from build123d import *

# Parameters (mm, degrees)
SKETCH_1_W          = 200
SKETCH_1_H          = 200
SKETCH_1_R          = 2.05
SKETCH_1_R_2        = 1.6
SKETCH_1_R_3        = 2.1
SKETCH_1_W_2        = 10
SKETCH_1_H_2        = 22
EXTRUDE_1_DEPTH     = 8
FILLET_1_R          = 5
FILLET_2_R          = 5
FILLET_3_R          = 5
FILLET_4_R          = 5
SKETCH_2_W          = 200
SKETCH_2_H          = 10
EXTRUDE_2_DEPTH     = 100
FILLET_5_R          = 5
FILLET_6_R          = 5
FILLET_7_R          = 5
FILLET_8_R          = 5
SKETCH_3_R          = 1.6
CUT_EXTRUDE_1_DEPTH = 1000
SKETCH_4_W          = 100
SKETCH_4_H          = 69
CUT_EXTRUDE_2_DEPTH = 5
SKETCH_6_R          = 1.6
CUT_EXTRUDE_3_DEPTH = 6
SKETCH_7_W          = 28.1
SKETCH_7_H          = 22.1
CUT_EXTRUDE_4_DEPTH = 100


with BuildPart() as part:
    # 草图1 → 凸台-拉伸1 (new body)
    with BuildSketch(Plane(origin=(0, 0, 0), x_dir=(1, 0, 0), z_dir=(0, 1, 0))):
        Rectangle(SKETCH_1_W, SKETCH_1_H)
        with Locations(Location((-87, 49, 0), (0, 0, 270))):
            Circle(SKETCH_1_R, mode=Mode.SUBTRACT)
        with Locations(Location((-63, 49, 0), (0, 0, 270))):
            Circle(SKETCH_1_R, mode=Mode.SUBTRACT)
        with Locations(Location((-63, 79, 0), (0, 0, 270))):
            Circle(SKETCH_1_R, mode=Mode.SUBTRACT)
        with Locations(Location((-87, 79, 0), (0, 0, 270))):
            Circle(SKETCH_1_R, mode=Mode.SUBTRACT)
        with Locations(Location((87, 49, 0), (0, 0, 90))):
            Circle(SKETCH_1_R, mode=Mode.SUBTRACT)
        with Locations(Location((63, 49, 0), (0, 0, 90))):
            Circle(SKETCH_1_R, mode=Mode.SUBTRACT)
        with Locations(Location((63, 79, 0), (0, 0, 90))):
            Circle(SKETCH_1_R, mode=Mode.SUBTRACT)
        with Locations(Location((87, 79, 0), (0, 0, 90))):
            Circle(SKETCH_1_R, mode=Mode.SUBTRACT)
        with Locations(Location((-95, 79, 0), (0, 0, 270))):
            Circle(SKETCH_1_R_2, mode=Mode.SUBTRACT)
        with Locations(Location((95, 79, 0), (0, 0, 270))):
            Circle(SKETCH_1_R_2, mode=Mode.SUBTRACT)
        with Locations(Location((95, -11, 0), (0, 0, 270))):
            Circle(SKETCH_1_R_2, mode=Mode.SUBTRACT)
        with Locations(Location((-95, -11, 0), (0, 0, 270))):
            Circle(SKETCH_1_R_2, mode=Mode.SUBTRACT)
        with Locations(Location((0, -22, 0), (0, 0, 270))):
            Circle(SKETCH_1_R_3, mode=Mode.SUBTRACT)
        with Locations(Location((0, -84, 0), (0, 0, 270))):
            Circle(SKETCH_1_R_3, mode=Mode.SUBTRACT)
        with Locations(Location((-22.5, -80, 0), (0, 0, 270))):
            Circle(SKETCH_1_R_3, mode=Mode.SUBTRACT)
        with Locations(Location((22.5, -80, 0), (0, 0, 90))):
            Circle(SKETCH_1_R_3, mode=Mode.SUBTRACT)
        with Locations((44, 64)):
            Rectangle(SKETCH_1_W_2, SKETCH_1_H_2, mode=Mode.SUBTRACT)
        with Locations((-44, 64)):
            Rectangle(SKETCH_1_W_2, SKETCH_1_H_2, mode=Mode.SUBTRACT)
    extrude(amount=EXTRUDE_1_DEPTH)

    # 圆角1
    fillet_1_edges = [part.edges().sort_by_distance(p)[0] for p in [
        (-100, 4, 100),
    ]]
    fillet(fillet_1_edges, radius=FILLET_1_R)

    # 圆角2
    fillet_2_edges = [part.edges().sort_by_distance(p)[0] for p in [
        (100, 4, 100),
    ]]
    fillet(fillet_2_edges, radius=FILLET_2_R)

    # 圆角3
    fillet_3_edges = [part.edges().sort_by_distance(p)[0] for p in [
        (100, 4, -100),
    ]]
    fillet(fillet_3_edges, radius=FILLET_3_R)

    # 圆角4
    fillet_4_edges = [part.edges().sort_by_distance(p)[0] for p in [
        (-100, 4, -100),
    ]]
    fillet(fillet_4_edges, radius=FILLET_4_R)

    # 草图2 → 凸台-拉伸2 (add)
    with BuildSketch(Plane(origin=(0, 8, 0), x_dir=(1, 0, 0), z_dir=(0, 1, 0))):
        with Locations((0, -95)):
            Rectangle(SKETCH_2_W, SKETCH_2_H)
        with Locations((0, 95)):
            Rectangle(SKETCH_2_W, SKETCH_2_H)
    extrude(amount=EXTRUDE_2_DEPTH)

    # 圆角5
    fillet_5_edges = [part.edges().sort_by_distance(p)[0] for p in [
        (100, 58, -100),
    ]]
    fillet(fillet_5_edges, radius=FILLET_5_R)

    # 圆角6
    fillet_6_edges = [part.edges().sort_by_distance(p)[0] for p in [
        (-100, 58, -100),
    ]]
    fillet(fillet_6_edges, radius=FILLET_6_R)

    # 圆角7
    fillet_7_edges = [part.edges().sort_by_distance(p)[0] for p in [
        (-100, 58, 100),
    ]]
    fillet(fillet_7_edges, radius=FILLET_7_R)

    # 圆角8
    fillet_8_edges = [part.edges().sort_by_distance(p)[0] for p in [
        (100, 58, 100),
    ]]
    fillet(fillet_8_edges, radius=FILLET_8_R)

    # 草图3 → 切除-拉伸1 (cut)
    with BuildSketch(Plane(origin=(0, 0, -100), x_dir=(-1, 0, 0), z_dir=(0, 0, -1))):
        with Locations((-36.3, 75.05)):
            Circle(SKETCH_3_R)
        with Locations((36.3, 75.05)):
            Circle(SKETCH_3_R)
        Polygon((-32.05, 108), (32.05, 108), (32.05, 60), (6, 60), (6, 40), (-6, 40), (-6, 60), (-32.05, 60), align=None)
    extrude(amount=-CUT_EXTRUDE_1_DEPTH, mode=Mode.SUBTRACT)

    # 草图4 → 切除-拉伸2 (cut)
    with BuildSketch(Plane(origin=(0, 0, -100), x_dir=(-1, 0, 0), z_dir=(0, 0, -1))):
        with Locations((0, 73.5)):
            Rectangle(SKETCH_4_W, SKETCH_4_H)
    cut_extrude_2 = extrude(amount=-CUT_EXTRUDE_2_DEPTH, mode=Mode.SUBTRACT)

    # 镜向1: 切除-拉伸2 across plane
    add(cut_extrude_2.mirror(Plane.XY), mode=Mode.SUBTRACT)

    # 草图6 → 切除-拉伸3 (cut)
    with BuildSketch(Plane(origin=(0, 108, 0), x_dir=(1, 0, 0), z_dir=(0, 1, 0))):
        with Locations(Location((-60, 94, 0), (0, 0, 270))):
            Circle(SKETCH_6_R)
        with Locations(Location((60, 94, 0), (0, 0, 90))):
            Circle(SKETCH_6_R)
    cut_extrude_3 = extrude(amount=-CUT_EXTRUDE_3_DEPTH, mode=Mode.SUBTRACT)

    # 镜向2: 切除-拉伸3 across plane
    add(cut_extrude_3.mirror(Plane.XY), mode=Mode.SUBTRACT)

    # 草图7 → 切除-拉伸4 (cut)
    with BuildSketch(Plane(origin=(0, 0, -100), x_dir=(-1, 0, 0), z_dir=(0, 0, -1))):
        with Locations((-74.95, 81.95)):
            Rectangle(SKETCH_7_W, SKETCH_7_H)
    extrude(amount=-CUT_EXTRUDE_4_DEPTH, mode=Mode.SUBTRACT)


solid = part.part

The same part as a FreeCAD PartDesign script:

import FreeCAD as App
import Part
import Sketcher
Q = App.Units.Quantity


def edges_at(feature, points):
    """Names of the edges that pass closest to the given points."""
    edges = feature.Shape.Edges
    near = lambda p: min(range(len(edges)), key=lambda i: edges[i].distToShape(Part.Vertex(*p))[0])
    return sorted({f"Edge{near(p) + 1}" for p in points})

doc = App.newDocument("Part")
body = doc.addObject("PartDesign::Body", "Body")

# Sketch on XZ plane
sketch1 = body.newObject("Sketcher::SketchObject", "Sketch")
sketch1.AttachmentSupport = (doc.getObject("XZ_Plane"), [""])
sketch1.MapMode = "FlatFace"
sketch1.addGeometry(Part.LineSegment(App.Vector(-100, -100, 0), App.Vector(-100, 100, 0)), False)
sketch1.addGeometry(Part.LineSegment(App.Vector(-100, 100, 0), App.Vector(100, 100, 0)), False)
sketch1.addGeometry(Part.LineSegment(App.Vector(100, 100, 0), App.Vector(100, -100, 0)), False)
sketch1.addGeometry(Part.LineSegment(App.Vector(100, -100, 0), App.Vector(-100, -100, 0)), False)
sketch1.addGeometry(Part.Circle(App.Vector(-22.5, 80, 0), App.Vector(0, 0, 1), 2.1), False)
sketch1.addGeometry(Part.Circle(App.Vector(0, 84, 0), App.Vector(0, 0, 1), 2.1), False)
sketch1.addGeometry(Part.Circle(App.Vector(-95, 11, 0), App.Vector(0, 0, 1), 1.6), False)
sketch1.addGeometry(Part.Circle(App.Vector(0, 22, 0), App.Vector(0, 0, 1), 2.1), False)
sketch1.addGeometry(Part.Circle(App.Vector(22.5, 80, 0), App.Vector(0, 0, 1), 2.1), False)
sketch1.addGeometry(Part.Circle(App.Vector(95, 11, 0), App.Vector(0, 0, 1), 1.6), False)
sketch1.addGeometry(Part.Circle(App.Vector(-87, -49, 0), App.Vector(0, 0, 1), 2.05), False)
sketch1.addGeometry(Part.Circle(App.Vector(-63, -49, 0), App.Vector(0, 0, 1), 2.05), False)
sketch1.addGeometry(Part.Circle(App.Vector(-95, -79, 0), App.Vector(0, 0, 1), 1.6), False)
sketch1.addGeometry(Part.Circle(App.Vector(-87, -79, 0), App.Vector(0, 0, 1), 2.05), False)
sketch1.addGeometry(Part.Circle(App.Vector(-63, -79, 0), App.Vector(0, 0, 1), 2.05), False)
sketch1.addGeometry(Part.LineSegment(App.Vector(-39, -53, 0), App.Vector(-49, -53, 0)), False)
sketch1.addGeometry(Part.LineSegment(App.Vector(-49, -53, 0), App.Vector(-49, -75, 0)), False)
sketch1.addGeometry(Part.LineSegment(App.Vector(-49, -75, 0), App.Vector(-39, -75, 0)), False)
sketch1.addGeometry(Part.LineSegment(App.Vector(-39, -75, 0), App.Vector(-39, -53, 0)), False)
sketch1.addGeometry(Part.LineSegment(App.Vector(49, -53, 0), App.Vector(39, -53, 0)), False)
sketch1.addGeometry(Part.LineSegment(App.Vector(39, -53, 0), App.Vector(39, -75, 0)), False)
sketch1.addGeometry(Part.LineSegment(App.Vector(39, -75, 0), App.Vector(49, -75, 0)), False)
sketch1.addGeometry(Part.LineSegment(App.Vector(49, -75, 0), App.Vector(49, -53, 0)), False)
sketch1.addGeometry(Part.Circle(App.Vector(63, -49, 0), App.Vector(0, 0, 1), 2.05), False)
sketch1.addGeometry(Part.Circle(App.Vector(87, -49, 0), App.Vector(0, 0, 1), 2.05), False)
sketch1.addGeometry(Part.Circle(App.Vector(63, -79, 0), App.Vector(0, 0, 1), 2.05), False)
sketch1.addGeometry(Part.Circle(App.Vector(87, -79, 0), App.Vector(0, 0, 1), 2.05), False)
sketch1.addGeometry(Part.Circle(App.Vector(95, -79, 0), App.Vector(0, 0, 1), 1.6), False)
sketch1.addConstraint(Sketcher.Constraint("Coincident", 0, 2, 1, 1))
sketch1.addConstraint(Sketcher.Constraint("Coincident", 1, 2, 2, 1))
sketch1.addConstraint(Sketcher.Constraint("Coincident", 2, 2, 3, 1))
sketch1.addConstraint(Sketcher.Constraint("Coincident", 3, 2, 0, 1))
sketch1.addConstraint(Sketcher.Constraint("Coincident", 15, 2, 16, 1))
sketch1.addConstraint(Sketcher.Constraint("Coincident", 16, 2, 17, 1))
sketch1.addConstraint(Sketcher.Constraint("Coincident", 17, 2, 18, 1))
sketch1.addConstraint(Sketcher.Constraint("Coincident", 18, 2, 15, 1))
sketch1.addConstraint(Sketcher.Constraint("Coincident", 19, 2, 20, 1))
sketch1.addConstraint(Sketcher.Constraint("Coincident", 20, 2, 21, 1))
sketch1.addConstraint(Sketcher.Constraint("Coincident", 21, 2, 22, 1))
sketch1.addConstraint(Sketcher.Constraint("Coincident", 22, 2, 19, 1))
sketch1.addConstraint(Sketcher.Constraint("Vertical", 0))
sketch1.addConstraint(Sketcher.Constraint("Horizontal", 1))
sketch1.addConstraint(Sketcher.Constraint("Vertical", 2))
sketch1.addConstraint(Sketcher.Constraint("Horizontal", 3))
sketch1.addConstraint(Sketcher.Constraint("Horizontal", 15))
sketch1.addConstraint(Sketcher.Constraint("Vertical", 16))
sketch1.addConstraint(Sketcher.Constraint("Horizontal", 17))
sketch1.addConstraint(Sketcher.Constraint("Vertical", 18))
sketch1.addConstraint(Sketcher.Constraint("Horizontal", 19))
sketch1.addConstraint(Sketcher.Constraint("Vertical", 20))
sketch1.addConstraint(Sketcher.Constraint("Horizontal", 21))
sketch1.addConstraint(Sketcher.Constraint("Vertical", 22))
sketch1.addConstraint(Sketcher.Constraint("Equal", 4, 5))
sketch1.addConstraint(Sketcher.Constraint("Equal", 5, 7))
sketch1.addConstraint(Sketcher.Constraint("Equal", 7, 8))
sketch1.addConstraint(Sketcher.Constraint("Equal", 6, 9))
sketch1.addConstraint(Sketcher.Constraint("Equal", 10, 11))
sketch1.addConstraint(Sketcher.Constraint("Equal", 9, 12))
sketch1.addConstraint(Sketcher.Constraint("Equal", 11, 13))
sketch1.addConstraint(Sketcher.Constraint("Equal", 13, 14))
sketch1.addConstraint(Sketcher.Constraint("Equal", 14, 23))
sketch1.addConstraint(Sketcher.Constraint("Equal", 23, 24))
sketch1.addConstraint(Sketcher.Constraint("Equal", 24, 25))
sketch1.addConstraint(Sketcher.Constraint("Equal", 25, 26))
sketch1.addConstraint(Sketcher.Constraint("Equal", 12, 27))
sketch1.addConstraint(Sketcher.Constraint("Symmetric", 0, 2, 2, 2, -1, 1))
sketch1.addConstraint(Sketcher.Constraint("Symmetric", 4, 3, 8, 3, -2))
sketch1.addConstraint(Sketcher.Constraint("Symmetric", 6, 3, 9, 3, -2))
sketch1.addConstraint(Sketcher.Constraint("Symmetric", 11, 3, 23, 3, -2))
sketch1.addConstraint(Sketcher.Constraint("Symmetric", 10, 3, 24, 3, -2))
sketch1.addConstraint(Sketcher.Constraint("Symmetric", 14, 3, 25, 3, -2))
sketch1.addConstraint(Sketcher.Constraint("Symmetric", 13, 3, 26, 3, -2))
sketch1.addConstraint(Sketcher.Constraint("Symmetric", 12, 3, 27, 3, -2))
sketch1.addConstraint(Sketcher.Constraint("Symmetric", 18, 2, 19, 2, -2))
sketch1.addConstraint(Sketcher.Constraint("Symmetric", 16, 2, 21, 2, -2))
sketch1.addConstraint(Sketcher.Constraint("PointOnObject", 5, 3, -2))
sketch1.addConstraint(Sketcher.Constraint("PointOnObject", 7, 3, -2))
sketch1.addConstraint(Sketcher.Constraint("Horizontal", 10, 3, 11, 3))
sketch1.addConstraint(Sketcher.Constraint("Horizontal", 12, 3, 13, 3))
sketch1.addConstraint(Sketcher.Constraint("Horizontal", 13, 3, 14, 3))
sketch1.addConstraint(Sketcher.Constraint("Vertical", 6, 3, 12, 3))
sketch1.addConstraint(Sketcher.Constraint("Vertical", 10, 3, 13, 3))
sketch1.addConstraint(Sketcher.Constraint("Vertical", 11, 3, 14, 3))
sketch1.addConstraint(Sketcher.Constraint("Equal", 3, 0))
sketch1.addConstraint(Sketcher.Constraint("Diameter", 4, Q("4.2 mm")))
sketch1.addConstraint(Sketcher.Constraint("Diameter", 6, Q("3.2 mm")))
sketch1.addConstraint(Sketcher.Constraint("Diameter", 10, Q("4.1 mm")))
sketch1.addConstraint(Sketcher.Constraint("DistanceX", 1, 1, 1, 2, Q("200 mm")))
sketch1.addConstraint(Sketcher.Constraint("DistanceX", 15, 2, 15, 1, Q("10 mm")))
sketch1.addConstraint(Sketcher.Constraint("DistanceY", 16, 2, 16, 1, Q("22 mm")))
sketch1.addConstraint(Sketcher.Constraint("DistanceY", -1, 1, 4, 3, Q("80 mm")))
sketch1.addConstraint(Sketcher.Constraint("DistanceY", -1, 1, 5, 3, Q("84 mm")))
sketch1.addConstraint(Sketcher.Constraint("DistanceX", 6, 3, -1, 1, Q("95 mm")))
sketch1.addConstraint(Sketcher.Constraint("DistanceY", -1, 1, 6, 3, Q("11 mm")))
sketch1.addConstraint(Sketcher.Constraint("DistanceY", -1, 1, 7, 3, Q("22 mm")))
sketch1.addConstraint(Sketcher.Constraint("DistanceX", 10, 3, -1, 1, Q("87 mm")))
sketch1.addConstraint(Sketcher.Constraint("DistanceY", 10, 3, -1, 1, Q("49 mm")))
sketch1.addConstraint(Sketcher.Constraint("DistanceX", 11, 3, -1, 1, Q("63 mm")))
sketch1.addConstraint(Sketcher.Constraint("DistanceY", 12, 3, -1, 1, Q("79 mm")))
sketch1.addConstraint(Sketcher.Constraint("DistanceX", 15, 2, -1, 1, Q("49 mm")))
sketch1.addConstraint(Sketcher.Constraint("DistanceY", 15, 2, -1, 1, Q("53 mm")))
sketch1.addConstraint(Sketcher.Constraint("DistanceX", 4, 3, 8, 3, Q("45 mm")))
pad1 = body.newObject("PartDesign::Pad", "Pad")
pad1.Profile = sketch1
pad1.Length = 8
pad1.Reversed = True
doc.recompute()

fillet = body.newObject("PartDesign::Fillet", "Fillet")
fillet.Base = (pad1, edges_at(pad1, [(-100, 4, 100)]))
fillet.Radius = 5
doc.recompute()

fillet2 = body.newObject("PartDesign::Fillet", "Fillet001")
fillet2.Base = (fillet, edges_at(fillet, [(100, 4, 100)]))
fillet2.Radius = 5
doc.recompute()

fillet3 = body.newObject("PartDesign::Fillet", "Fillet002")
fillet3.Base = (fillet2, edges_at(fillet2, [(100, 4, -100)]))
fillet3.Radius = 5
doc.recompute()

fillet4 = body.newObject("PartDesign::Fillet", "Fillet003")
fillet4.Base = (fillet3, edges_at(fillet3, [(-100, 4, -100)]))
fillet4.Radius = 5

# Sketch on XZ plane
sketch2 = body.newObject("Sketcher::SketchObject", "Sketch001")
sketch2.AttachmentSupport = (doc.getObject("XZ_Plane"), [""])
sketch2.MapMode = "FlatFace"
sketch2.AttachmentOffset = App.Placement(App.Vector(0, 0, -8), App.Rotation())
sketch2.addGeometry(Part.LineSegment(App.Vector(-100, 90, 0), App.Vector(-100, 100, 0)), False)
sketch2.addGeometry(Part.LineSegment(App.Vector(-100, 100, 0), App.Vector(100, 100, 0)), False)
sketch2.addGeometry(Part.LineSegment(App.Vector(100, 100, 0), App.Vector(100, 90, 0)), False)
sketch2.addGeometry(Part.LineSegment(App.Vector(100, 90, 0), App.Vector(-100, 90, 0)), False)
sketch2.addGeometry(Part.LineSegment(App.Vector(-100, -100, 0), App.Vector(-100, -90, 0)), False)
sketch2.addGeometry(Part.LineSegment(App.Vector(-100, -90, 0), App.Vector(100, -90, 0)), False)
sketch2.addGeometry(Part.LineSegment(App.Vector(100, -90, 0), App.Vector(100, -100, 0)), False)
sketch2.addGeometry(Part.LineSegment(App.Vector(100, -100, 0), App.Vector(-100, -100, 0)), False)
sketch2.addConstraint(Sketcher.Constraint("Coincident", 0, 2, 1, 1))
sketch2.addConstraint(Sketcher.Constraint("Coincident", 1, 2, 2, 1))
sketch2.addConstraint(Sketcher.Constraint("Coincident", 2, 2, 3, 1))
sketch2.addConstraint(Sketcher.Constraint("Coincident", 3, 2, 0, 1))
sketch2.addConstraint(Sketcher.Constraint("Coincident", 4, 2, 5, 1))
sketch2.addConstraint(Sketcher.Constraint("Coincident", 5, 2, 6, 1))
sketch2.addConstraint(Sketcher.Constraint("Coincident", 6, 2, 7, 1))
sketch2.addConstraint(Sketcher.Constraint("Coincident", 7, 2, 4, 1))
sketch2.addConstraint(Sketcher.Constraint("Vertical", 0))
sketch2.addConstraint(Sketcher.Constraint("Horizontal", 1))
sketch2.addConstraint(Sketcher.Constraint("Vertical", 2))
sketch2.addConstraint(Sketcher.Constraint("Horizontal", 3))
sketch2.addConstraint(Sketcher.Constraint("Vertical", 4))
sketch2.addConstraint(Sketcher.Constraint("Horizontal", 5))
sketch2.addConstraint(Sketcher.Constraint("Vertical", 6))
sketch2.addConstraint(Sketcher.Constraint("Horizontal", 7))
sketch2.addConstraint(Sketcher.Constraint("Symmetric", 2, 2, 4, 2, -1, 1))
sketch2.addConstraint(Sketcher.Constraint("Symmetric", 0, 2, 6, 2, -1, 1))
sketch2.addConstraint(Sketcher.Constraint("Vertical", 3, 2, 4, 2))
sketch2.addConstraint(Sketcher.Constraint("DistanceX", 1, 1, 1, 2, Q("200 mm")))
sketch2.addConstraint(Sketcher.Constraint("DistanceY", 0, 1, 0, 2, Q("10 mm")))
sketch2.addConstraint(Sketcher.Constraint("DistanceY", -1, 1, 0, 2, Q("100 mm")))
pad2 = body.newObject("PartDesign::Pad", "Pad001")
pad2.Profile = sketch2
pad2.Length = 100
pad2.Reversed = True
doc.recompute()

fillet5 = body.newObject("PartDesign::Fillet", "Fillet004")
fillet5.Base = (pad2, edges_at(pad2, [(100, 58, -100)]))
fillet5.Radius = 5
doc.recompute()

fillet6 = body.newObject("PartDesign::Fillet", "Fillet005")
fillet6.Base = (fillet5, edges_at(fillet5, [(-100, 58, -100)]))
fillet6.Radius = 5
doc.recompute()

fillet7 = body.newObject("PartDesign::Fillet", "Fillet006")
fillet7.Base = (fillet6, edges_at(fillet6, [(-100, 58, 100)]))
fillet7.Radius = 5
doc.recompute()

fillet8 = body.newObject("PartDesign::Fillet", "Fillet007")
fillet8.Base = (fillet7, edges_at(fillet7, [(100, 58, 100)]))
fillet8.Radius = 5

# Sketch on XY plane
sketch3 = body.newObject("Sketcher::SketchObject", "Sketch002")
sketch3.AttachmentSupport = (doc.getObject("XY_Plane"), [""])
sketch3.MapMode = "FlatFace"
sketch3.AttachmentOffset = App.Placement(App.Vector(0, 0, -100), App.Rotation())
sketch3.addGeometry(Part.Circle(App.Vector(36.3, 75.05, 0), App.Vector(0, 0, 1), 1.6), False)
sketch3.addGeometry(Part.Circle(App.Vector(-36.3, 75.05, 0), App.Vector(0, 0, 1), 1.6), False)
sketch3.addGeometry(Part.LineSegment(App.Vector(-32.05, 108, 0), App.Vector(32.05, 108, 0)), False)
sketch3.addGeometry(Part.LineSegment(App.Vector(32.05, 108, 0), App.Vector(32.05, 60, 0)), False)
sketch3.addGeometry(Part.LineSegment(App.Vector(32.05, 60, 0), App.Vector(6, 60, 0)), False)
sketch3.addGeometry(Part.LineSegment(App.Vector(6, 60, 0), App.Vector(6, 40, 0)), False)
sketch3.addGeometry(Part.LineSegment(App.Vector(6, 40, 0), App.Vector(-6, 40, 0)), False)
sketch3.addGeometry(Part.LineSegment(App.Vector(-6, 40, 0), App.Vector(-6, 60, 0)), False)
sketch3.addGeometry(Part.LineSegment(App.Vector(-6, 60, 0), App.Vector(-32.05, 60, 0)), False)
sketch3.addGeometry(Part.LineSegment(App.Vector(-32.05, 60, 0), App.Vector(-32.05, 108, 0)), False)
sketch3.addConstraint(Sketcher.Constraint("Coincident", 2, 2, 3, 1))
sketch3.addConstraint(Sketcher.Constraint("Coincident", 3, 2, 4, 1))
sketch3.addConstraint(Sketcher.Constraint("Coincident", 4, 2, 5, 1))
sketch3.addConstraint(Sketcher.Constraint("Coincident", 5, 2, 6, 1))
sketch3.addConstraint(Sketcher.Constraint("Coincident", 6, 2, 7, 1))
sketch3.addConstraint(Sketcher.Constraint("Coincident", 7, 2, 8, 1))
sketch3.addConstraint(Sketcher.Constraint("Coincident", 8, 2, 9, 1))
sketch3.addConstraint(Sketcher.Constraint("Coincident", 9, 2, 2, 1))
sketch3.addConstraint(Sketcher.Constraint("Horizontal", 2))
sketch3.addConstraint(Sketcher.Constraint("Vertical", 3))
sketch3.addConstraint(Sketcher.Constraint("Horizontal", 4))
sketch3.addConstraint(Sketcher.Constraint("Vertical", 5))
sketch3.addConstraint(Sketcher.Constraint("Horizontal", 6))
sketch3.addConstraint(Sketcher.Constraint("Vertical", 7))
sketch3.addConstraint(Sketcher.Constraint("Horizontal", 8))
sketch3.addConstraint(Sketcher.Constraint("Vertical", 9))
sketch3.addConstraint(Sketcher.Constraint("Equal", 0, 1))
sketch3.addConstraint(Sketcher.Constraint("Symmetric", 0, 3, 1, 3, -2))
sketch3.addConstraint(Sketcher.Constraint("Symmetric", 4, 2, 7, 2, -2))
sketch3.addConstraint(Sketcher.Constraint("Equal", 4, 8))
sketch3.addConstraint(Sketcher.Constraint("Diameter", 0, Q("3.2 mm")))
sketch3.addConstraint(Sketcher.Constraint("DistanceX", 6, 2, 6, 1, Q("12 mm")))
sketch3.addConstraint(Sketcher.Constraint("DistanceY", 3, 2, 3, 1, Q("48 mm")))
sketch3.addConstraint(Sketcher.Constraint("DistanceY", 5, 2, 5, 1, Q("20 mm")))
sketch3.addConstraint(Sketcher.Constraint("DistanceX", 2, 1, 2, 2, Q("64.1 mm")))
sketch3.addConstraint(Sketcher.Constraint("DistanceY", -1, 1, 2, 2, Q("108 mm")))
sketch3.addConstraint(Sketcher.Constraint("DistanceX", -1, 1, 0, 3, Q("36.3 mm")))
sketch3.addConstraint(Sketcher.Constraint("DistanceY", -1, 1, 0, 3, Q("75.05 mm")))
pocket1 = body.newObject("PartDesign::Pocket", "Pocket")
pocket1.Profile = sketch3
pocket1.Length = 1000
pocket1.Reversed = True

# Sketch on XY plane
sketch4 = body.newObject("Sketcher::SketchObject", "Sketch003")
sketch4.AttachmentSupport = (doc.getObject("XY_Plane"), [""])
sketch4.MapMode = "FlatFace"
sketch4.AttachmentOffset = App.Placement(App.Vector(0, 0, -100), App.Rotation())
sketch4.addGeometry(Part.LineSegment(App.Vector(50, 108, 0), App.Vector(50, 39, 0)), False)
sketch4.addGeometry(Part.LineSegment(App.Vector(50, 39, 0), App.Vector(-50, 39, 0)), False)
sketch4.addGeometry(Part.LineSegment(App.Vector(-50, 39, 0), App.Vector(-50, 108, 0)), False)
sketch4.addGeometry(Part.LineSegment(App.Vector(-50, 108, 0), App.Vector(50, 108, 0)), False)
sketch4.addConstraint(Sketcher.Constraint("Coincident", 0, 2, 1, 1))
sketch4.addConstraint(Sketcher.Constraint("Coincident", 1, 2, 2, 1))
sketch4.addConstraint(Sketcher.Constraint("Coincident", 2, 2, 3, 1))
sketch4.addConstraint(Sketcher.Constraint("Coincident", 3, 2, 0, 1))
sketch4.addConstraint(Sketcher.Constraint("Vertical", 0))
sketch4.addConstraint(Sketcher.Constraint("Horizontal", 1))
sketch4.addConstraint(Sketcher.Constraint("Vertical", 2))
sketch4.addConstraint(Sketcher.Constraint("Horizontal", 3))
sketch4.addConstraint(Sketcher.Constraint("DistanceX", 1, 2, 1, 1, Q("100 mm")))
sketch4.addConstraint(Sketcher.Constraint("DistanceY", 0, 2, 0, 1, Q("69 mm")))
sketch4.addConstraint(Sketcher.Constraint("DistanceX", -1, 1, 0, 2, Q("50 mm")))
sketch4.addConstraint(Sketcher.Constraint("DistanceY", -1, 1, 0, 2, Q("39 mm")))
pocket2 = body.newObject("PartDesign::Pocket", "Pocket001")
pocket2.Profile = sketch4
pocket2.Length = 5
pocket2.Reversed = True
doc.recompute()

mirrored = body.newObject("PartDesign::Mirrored", "Mirrored")
mirrored.Originals = [pocket2]
mirrored.MirrorPlane = (doc.getObject("XY_Plane"), [""])
body.Tip = mirrored

# Sketch on XZ plane
sketch5 = body.newObject("Sketcher::SketchObject", "Sketch004")
sketch5.AttachmentSupport = (doc.getObject("XZ_Plane"), [""])
sketch5.MapMode = "FlatFace"
sketch5.AttachmentOffset = App.Placement(App.Vector(0, 0, -108), App.Rotation())
sketch5.addGeometry(Part.Circle(App.Vector(-60, -94, 0), App.Vector(0, 0, 1), 1.6), False)
sketch5.addGeometry(Part.Circle(App.Vector(60, -94, 0), App.Vector(0, 0, 1), 1.6), False)
sketch5.addConstraint(Sketcher.Constraint("Equal", 0, 1))
sketch5.addConstraint(Sketcher.Constraint("Symmetric", 0, 3, 1, 3, -2))
sketch5.addConstraint(Sketcher.Constraint("Diameter", 0, Q("3.2 mm")))
sketch5.addConstraint(Sketcher.Constraint("DistanceX", 0, 3, -1, 1, Q("60 mm")))
sketch5.addConstraint(Sketcher.Constraint("DistanceY", 0, 3, -1, 1, Q("94 mm")))
pocket3 = body.newObject("PartDesign::Pocket", "Pocket002")
pocket3.Profile = sketch5
pocket3.Length = 6
pocket3.Reversed = True
doc.recompute()

mirrored2 = body.newObject("PartDesign::Mirrored", "Mirrored001")
mirrored2.Originals = [pocket3]
mirrored2.MirrorPlane = (doc.getObject("XY_Plane"), [""])
body.Tip = mirrored2

# Sketch on XY plane
sketch6 = body.newObject("Sketcher::SketchObject", "Sketch005")
sketch6.AttachmentSupport = (doc.getObject("XY_Plane"), [""])
sketch6.MapMode = "FlatFace"
sketch6.AttachmentOffset = App.Placement(App.Vector(0, 0, -100), App.Rotation())
sketch6.addGeometry(Part.LineSegment(App.Vector(89, 93, 0), App.Vector(89, 70.9, 0)), False)
sketch6.addGeometry(Part.LineSegment(App.Vector(89, 70.9, 0), App.Vector(60.9, 70.9, 0)), False)
sketch6.addGeometry(Part.LineSegment(App.Vector(60.9, 70.9, 0), App.Vector(60.9, 93, 0)), False)
sketch6.addGeometry(Part.LineSegment(App.Vector(60.9, 93, 0), App.Vector(89, 93, 0)), False)
sketch6.addConstraint(Sketcher.Constraint("Coincident", 0, 2, 1, 1))
sketch6.addConstraint(Sketcher.Constraint("Coincident", 1, 2, 2, 1))
sketch6.addConstraint(Sketcher.Constraint("Coincident", 2, 2, 3, 1))
sketch6.addConstraint(Sketcher.Constraint("Coincident", 3, 2, 0, 1))
sketch6.addConstraint(Sketcher.Constraint("Vertical", 0))
sketch6.addConstraint(Sketcher.Constraint("Horizontal", 1))
sketch6.addConstraint(Sketcher.Constraint("Vertical", 2))
sketch6.addConstraint(Sketcher.Constraint("Horizontal", 3))
sketch6.addConstraint(Sketcher.Constraint("DistanceX", 1, 2, 1, 1, Q("28.1 mm")))
sketch6.addConstraint(Sketcher.Constraint("DistanceY", 0, 2, 0, 1, Q("22.1 mm")))
sketch6.addConstraint(Sketcher.Constraint("DistanceX", -1, 1, 0, 2, Q("89 mm")))
sketch6.addConstraint(Sketcher.Constraint("DistanceY", -1, 1, 2, 2, Q("93 mm")))
pocket4 = body.newObject("PartDesign::Pocket", "Pocket003")
pocket4.Profile = sketch6
pocket4.Length = 100
pocket4.Reversed = True

doc.recompute()
